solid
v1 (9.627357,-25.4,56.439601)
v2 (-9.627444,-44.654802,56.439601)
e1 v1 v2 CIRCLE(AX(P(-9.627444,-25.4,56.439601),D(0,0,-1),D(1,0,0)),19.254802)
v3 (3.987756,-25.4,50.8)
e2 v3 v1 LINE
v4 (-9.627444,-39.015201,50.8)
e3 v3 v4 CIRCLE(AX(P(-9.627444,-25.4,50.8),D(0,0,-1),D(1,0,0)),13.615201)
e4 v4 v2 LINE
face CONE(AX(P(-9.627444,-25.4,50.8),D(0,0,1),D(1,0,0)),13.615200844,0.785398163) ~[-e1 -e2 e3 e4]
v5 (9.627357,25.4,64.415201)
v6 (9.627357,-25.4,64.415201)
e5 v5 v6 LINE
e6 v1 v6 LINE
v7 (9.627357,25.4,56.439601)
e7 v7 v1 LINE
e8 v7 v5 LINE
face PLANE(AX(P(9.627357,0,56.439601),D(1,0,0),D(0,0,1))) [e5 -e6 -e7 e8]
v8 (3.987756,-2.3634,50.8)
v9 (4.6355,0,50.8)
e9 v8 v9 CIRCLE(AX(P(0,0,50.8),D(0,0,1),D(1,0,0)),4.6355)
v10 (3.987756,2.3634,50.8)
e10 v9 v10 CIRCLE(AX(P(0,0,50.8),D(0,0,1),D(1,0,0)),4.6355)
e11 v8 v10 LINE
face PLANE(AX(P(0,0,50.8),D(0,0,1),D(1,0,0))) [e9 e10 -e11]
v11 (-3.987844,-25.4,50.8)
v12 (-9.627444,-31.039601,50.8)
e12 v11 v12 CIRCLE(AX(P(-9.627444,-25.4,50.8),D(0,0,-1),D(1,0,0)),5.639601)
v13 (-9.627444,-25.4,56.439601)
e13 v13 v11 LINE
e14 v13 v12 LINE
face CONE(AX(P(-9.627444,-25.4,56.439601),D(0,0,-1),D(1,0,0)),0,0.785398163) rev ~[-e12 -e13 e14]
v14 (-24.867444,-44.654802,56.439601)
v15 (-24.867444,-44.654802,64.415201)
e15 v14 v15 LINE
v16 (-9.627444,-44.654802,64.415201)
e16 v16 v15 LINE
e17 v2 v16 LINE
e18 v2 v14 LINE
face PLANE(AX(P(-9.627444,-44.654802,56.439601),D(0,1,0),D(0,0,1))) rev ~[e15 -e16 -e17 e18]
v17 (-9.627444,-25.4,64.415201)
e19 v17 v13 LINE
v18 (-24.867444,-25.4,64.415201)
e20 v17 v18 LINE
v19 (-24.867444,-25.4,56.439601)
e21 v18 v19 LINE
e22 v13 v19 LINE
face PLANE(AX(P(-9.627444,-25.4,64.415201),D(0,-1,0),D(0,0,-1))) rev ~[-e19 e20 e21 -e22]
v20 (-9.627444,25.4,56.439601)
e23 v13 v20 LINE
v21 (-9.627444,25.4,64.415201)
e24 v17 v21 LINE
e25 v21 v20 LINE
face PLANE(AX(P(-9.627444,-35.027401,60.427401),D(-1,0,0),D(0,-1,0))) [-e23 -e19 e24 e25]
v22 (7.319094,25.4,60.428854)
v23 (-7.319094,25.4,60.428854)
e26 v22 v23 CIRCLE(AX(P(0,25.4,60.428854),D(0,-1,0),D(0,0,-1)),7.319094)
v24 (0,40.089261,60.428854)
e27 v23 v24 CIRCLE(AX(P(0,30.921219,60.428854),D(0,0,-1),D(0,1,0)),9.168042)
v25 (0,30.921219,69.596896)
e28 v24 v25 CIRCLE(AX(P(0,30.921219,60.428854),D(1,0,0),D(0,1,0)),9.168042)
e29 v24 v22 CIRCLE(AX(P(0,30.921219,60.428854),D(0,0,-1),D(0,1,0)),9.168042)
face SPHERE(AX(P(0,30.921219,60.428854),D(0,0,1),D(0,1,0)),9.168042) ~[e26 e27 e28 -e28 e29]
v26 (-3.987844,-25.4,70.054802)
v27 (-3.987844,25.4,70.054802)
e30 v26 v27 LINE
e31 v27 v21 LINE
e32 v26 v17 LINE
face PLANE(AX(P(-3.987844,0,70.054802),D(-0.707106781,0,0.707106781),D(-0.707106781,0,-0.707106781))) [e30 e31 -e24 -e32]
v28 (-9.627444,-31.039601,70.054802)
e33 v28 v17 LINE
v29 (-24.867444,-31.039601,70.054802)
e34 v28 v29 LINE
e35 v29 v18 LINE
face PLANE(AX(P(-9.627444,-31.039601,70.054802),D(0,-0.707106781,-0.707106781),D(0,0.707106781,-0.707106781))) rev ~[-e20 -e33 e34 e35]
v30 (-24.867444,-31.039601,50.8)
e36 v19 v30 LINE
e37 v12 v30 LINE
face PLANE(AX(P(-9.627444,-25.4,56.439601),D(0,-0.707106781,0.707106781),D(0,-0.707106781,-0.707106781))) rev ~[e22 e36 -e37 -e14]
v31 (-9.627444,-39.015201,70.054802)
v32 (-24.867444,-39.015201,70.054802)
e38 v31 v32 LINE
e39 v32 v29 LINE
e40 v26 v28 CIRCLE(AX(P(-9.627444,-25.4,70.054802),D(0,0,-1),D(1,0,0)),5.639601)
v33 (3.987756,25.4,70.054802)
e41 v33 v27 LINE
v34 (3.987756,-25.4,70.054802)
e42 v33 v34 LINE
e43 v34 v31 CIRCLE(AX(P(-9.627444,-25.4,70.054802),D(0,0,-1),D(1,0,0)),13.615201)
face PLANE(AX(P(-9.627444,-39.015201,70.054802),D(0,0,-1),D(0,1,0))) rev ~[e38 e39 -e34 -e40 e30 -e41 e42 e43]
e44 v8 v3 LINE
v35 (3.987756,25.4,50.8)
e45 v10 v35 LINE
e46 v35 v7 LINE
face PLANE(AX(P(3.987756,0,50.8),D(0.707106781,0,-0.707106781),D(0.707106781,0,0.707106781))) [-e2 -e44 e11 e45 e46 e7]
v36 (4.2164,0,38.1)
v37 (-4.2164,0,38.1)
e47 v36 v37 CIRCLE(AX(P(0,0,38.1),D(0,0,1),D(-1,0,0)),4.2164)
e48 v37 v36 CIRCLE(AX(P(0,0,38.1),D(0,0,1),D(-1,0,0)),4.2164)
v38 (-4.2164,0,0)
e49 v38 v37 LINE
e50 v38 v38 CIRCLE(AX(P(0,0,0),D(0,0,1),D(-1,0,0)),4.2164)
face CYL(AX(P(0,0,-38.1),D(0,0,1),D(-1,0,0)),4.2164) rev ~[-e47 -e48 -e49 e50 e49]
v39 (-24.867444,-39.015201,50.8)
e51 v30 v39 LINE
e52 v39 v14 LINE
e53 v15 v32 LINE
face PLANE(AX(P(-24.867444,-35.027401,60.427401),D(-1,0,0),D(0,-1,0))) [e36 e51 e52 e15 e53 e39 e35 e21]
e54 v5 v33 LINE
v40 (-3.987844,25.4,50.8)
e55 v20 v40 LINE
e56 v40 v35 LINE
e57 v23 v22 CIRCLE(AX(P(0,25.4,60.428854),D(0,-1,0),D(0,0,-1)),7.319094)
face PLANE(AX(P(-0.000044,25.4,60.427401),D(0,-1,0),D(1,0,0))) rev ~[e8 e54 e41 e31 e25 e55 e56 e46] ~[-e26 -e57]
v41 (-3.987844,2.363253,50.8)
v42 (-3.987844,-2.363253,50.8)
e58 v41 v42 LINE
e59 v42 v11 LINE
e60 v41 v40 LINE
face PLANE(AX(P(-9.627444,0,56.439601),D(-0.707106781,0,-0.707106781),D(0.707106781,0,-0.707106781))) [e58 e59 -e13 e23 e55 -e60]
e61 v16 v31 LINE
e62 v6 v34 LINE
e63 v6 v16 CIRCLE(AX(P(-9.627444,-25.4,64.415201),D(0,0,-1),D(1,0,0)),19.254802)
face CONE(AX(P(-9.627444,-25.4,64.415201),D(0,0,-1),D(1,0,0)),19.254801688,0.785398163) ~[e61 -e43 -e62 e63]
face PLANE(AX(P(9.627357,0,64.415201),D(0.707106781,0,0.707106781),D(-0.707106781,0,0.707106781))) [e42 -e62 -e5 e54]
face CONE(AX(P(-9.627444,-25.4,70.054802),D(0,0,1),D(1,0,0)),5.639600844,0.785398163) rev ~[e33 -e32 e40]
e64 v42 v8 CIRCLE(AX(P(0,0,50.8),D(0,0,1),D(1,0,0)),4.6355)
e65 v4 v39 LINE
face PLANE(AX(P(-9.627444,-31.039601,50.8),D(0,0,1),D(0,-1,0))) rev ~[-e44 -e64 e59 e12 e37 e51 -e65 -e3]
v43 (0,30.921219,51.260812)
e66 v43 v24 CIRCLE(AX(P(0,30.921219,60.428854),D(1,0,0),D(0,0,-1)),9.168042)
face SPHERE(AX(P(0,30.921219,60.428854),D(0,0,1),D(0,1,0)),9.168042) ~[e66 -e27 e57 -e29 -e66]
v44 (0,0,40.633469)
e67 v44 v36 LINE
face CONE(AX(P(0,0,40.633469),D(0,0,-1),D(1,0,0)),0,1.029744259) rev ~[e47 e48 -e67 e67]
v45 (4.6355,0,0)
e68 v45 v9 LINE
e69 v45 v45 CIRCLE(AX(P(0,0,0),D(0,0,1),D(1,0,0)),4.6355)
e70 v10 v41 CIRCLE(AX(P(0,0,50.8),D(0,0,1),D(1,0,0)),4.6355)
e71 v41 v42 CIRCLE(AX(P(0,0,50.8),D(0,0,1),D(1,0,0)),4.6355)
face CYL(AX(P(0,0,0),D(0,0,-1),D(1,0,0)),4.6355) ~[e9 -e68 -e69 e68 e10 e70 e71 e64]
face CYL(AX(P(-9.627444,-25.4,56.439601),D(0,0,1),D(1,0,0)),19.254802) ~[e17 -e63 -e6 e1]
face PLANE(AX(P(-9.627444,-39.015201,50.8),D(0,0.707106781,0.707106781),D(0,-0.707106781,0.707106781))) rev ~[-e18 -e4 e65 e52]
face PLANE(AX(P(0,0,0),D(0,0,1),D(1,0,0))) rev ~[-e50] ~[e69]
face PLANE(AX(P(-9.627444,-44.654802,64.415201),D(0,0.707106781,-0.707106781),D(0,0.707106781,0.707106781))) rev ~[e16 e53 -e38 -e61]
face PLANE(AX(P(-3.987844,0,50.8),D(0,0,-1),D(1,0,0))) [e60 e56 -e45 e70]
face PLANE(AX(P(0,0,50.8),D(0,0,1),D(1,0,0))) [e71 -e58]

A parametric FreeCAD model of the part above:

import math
import FreeCAD as App
import Part
import Sketcher
Q = App.Units.Quantity


def add_polygon(sketch, points):
    """Adds a closed chain of lines whose ends are joined by coincident constraints."""
    first, n = sketch.GeometryCount, len(points)
    for a, b in zip(points, points[1:] + points[:1]):
        sketch.addGeometry(Part.LineSegment(App.Vector(*a, 0), App.Vector(*b, 0)), False)
    for i in range(n):
        sketch.addConstraint(Sketcher.Constraint("Coincident", first + i, 2, first + (i + 1) % n, 1))

doc = App.newDocument("Part")
body = doc.addObject("PartDesign::Body", "Body")

sketch1 = doc.addObject("Sketcher::SketchObject", "Sketch")
body.addObject(sketch1)
sketch1.AttachmentSupport = (doc.XY_Plane, [""])
sketch1.MapMode = "FlatFace"
sketch1.addGeometry(Part.Circle(App.Vector(0, 0, 0), App.Vector(0, 0, 1), 4.6355), False)
sketch1.addConstraint(Sketcher.Constraint("Coincident", 0, 3, -1, 1))
sketch1.addConstraint(Sketcher.Constraint("Diameter", 0, Q("0.365 in")))
pad1 = doc.addObject("PartDesign::Pad", "Pad")
body.addObject(pad1)
pad1.Profile = sketch1
pad1.Length = Q("2 in")

sketch2 = doc.addObject("Sketcher::SketchObject", "Sketch001")
body.addObject(sketch2)
sketch2.AttachmentSupport = (doc.XY_Plane, [""])
sketch2.MapMode = "FlatFace"
sketch2.addGeometry(Part.Circle(App.Vector(0, 0, 0), App.Vector(0, 0, 1), 4.2164), False)
sketch2.addConstraint(Sketcher.Constraint("Coincident", 0, 3, -1, 1))
sketch2.addConstraint(Sketcher.Constraint("Diameter", 0, Q("0.332 in")))
doc.recompute()
hole = doc.addObject("PartDesign::Hole", "Hole")
body.addObject(hole)
hole.Profile = sketch2
hole.ThreadType = "None"
hole.Diameter = Q("0.332 in")
hole.DepthType = "Dimension"
hole.Depth = Q("1.5 in")
hole.DrillPoint = "Angled"
hole.DrillPointAngle = 118
hole.Reversed = True

sketch3 = doc.addObject("Sketcher::SketchObject", "Sketch002")
body.addObject(sketch3)
sketch3.AttachmentSupport = (doc.XZ_Plane, [""])
sketch3.MapMode = "FlatFace"
add_polygon(sketch3, [(-9.627444, 56.439601), (-3.987844, 50.8), (3.987756, 50.8), (9.627357, 56.439601), (9.627357, 64.415201), (3.987756, 70.054802), (-3.987844, 70.054802), (-9.627444, 64.415201)])
sketch3.addConstraint(Sketcher.Constraint("Horizontal", 1))
sketch3.addConstraint(Sketcher.Constraint("Vertical", 3))
sketch3.addConstraint(Sketcher.Constraint("Horizontal", 5))
sketch3.addConstraint(Sketcher.Constraint("Vertical", 7))
sketch3.addConstraint(Sketcher.Constraint("Perpendicular", 0, 2))
sketch3.addConstraint(Sketcher.Constraint("Perpendicular", 2, 4))
sketch3.addConstraint(Sketcher.Constraint("Perpendicular", 4, 6))
sketch3.addConstraint(Sketcher.Constraint("Horizontal", 3, 2, 6, 2))
sketch3.addConstraint(Sketcher.Constraint("Horizontal", 2, 2, 7, 2))
sketch3.addConstraint(Sketcher.Constraint("Vertical", 1, 2, 4, 2))
sketch3.addConstraint(Sketcher.Constraint("Vertical", 0, 2, 5, 2))
sketch3.addConstraint(Sketcher.Constraint("Equal", 5, 3))
sketch3.addConstraint(Sketcher.Constraint("DistanceY", -1, 1, 0, 2, Q("2 in")))
sketch3.addConstraint(Sketcher.Constraint("DistanceX", 1, 1, 1, 2, Q("0.314 in")))
sketch3.addConstraint(Sketcher.Constraint("Distance", 0, Q("0.314 in")))
sketch3.addConstraint(Sketcher.Constraint("DistanceX", 0, 2, -1, 1, Q("3.987844 mm")))
pad2 = doc.addObject("PartDesign::Pad", "Pad001")
body.addObject(pad2)
pad2.Profile = sketch3
pad2.Type = "TwoLengths"
pad2.Length = Q("1 in")
pad2.Length2 = Q("1 in")

sketch4 = doc.addObject("Sketcher::SketchObject", "Sketch003")
body.addObject(sketch4)
sketch4.AttachmentSupport = (doc.XZ_Plane, [""])
sketch4.MapMode = "FlatFace"
sketch4.AttachmentOffset = App.Placement(App.Vector(0, 0, 1 * 25.4), App.Rotation())
add_polygon(sketch4, [(9.627357, 64.415201), (3.987756, 70.054802), (-3.987844, 70.054802), (-9.627444, 64.415201), (-9.627444, 56.439601), (-3.987844, 50.8), (3.987756, 50.8), (9.627357, 56.439601)])
sketch4.addGeometry(Part.LineSegment(App.Vector(-9.627444, 70.054802, 0), App.Vector(-9.627444, 50.8, 0)), True)
sketch4.addConstraint(Sketcher.Constraint("Horizontal", 1))
sketch4.addConstraint(Sketcher.Constraint("Vertical", 3))
sketch4.addConstraint(Sketcher.Constraint("Horizontal", 5))
sketch4.addConstraint(Sketcher.Constraint("Vertical", 7))
sketch4.addConstraint(Sketcher.Constraint("Vertical", 8))
sketch4.addConstraint(Sketcher.Constraint("Perpendicular", 0, 2))
sketch4.addConstraint(Sketcher.Constraint("Perpendicular", 2, 4))
sketch4.addConstraint(Sketcher.Constraint("Perpendicular", 4, 6))
sketch4.addConstraint(Sketcher.Constraint("Horizontal", 3, 2, 6, 2))
sketch4.addConstraint(Sketcher.Constraint("Horizontal", 2, 2, 7, 2))
sketch4.addConstraint(Sketcher.Constraint("Horizontal", 1, 2, 8, 1))
sketch4.addConstraint(Sketcher.Constraint("Horizontal", 5, 2, 8, 2))
sketch4.addConstraint(Sketcher.Constraint("Vertical", 1, 2, 4, 2))
sketch4.addConstraint(Sketcher.Constraint("Vertical", 0, 2, 5, 2))
sketch4.addConstraint(Sketcher.Constraint("Vertical", 3, 2, 8, 1))
sketch4.addConstraint(Sketcher.Constraint("Equal", 5, 3))
sketch4.addConstraint(Sketcher.Constraint("DistanceY", -1, 1, 4, 2, Q("2 in")))
sketch4.addConstraint(Sketcher.Constraint("DistanceX", 1, 2, 1, 1, Q("0.314 in")))
sketch4.addConstraint(Sketcher.Constraint("Distance", 0, Q("0.314 in")))
sketch4.addConstraint(Sketcher.Constraint("DistanceX", -1, 1, 0, 2, Q("3.987756 mm")))
revolution = doc.addObject("PartDesign::Revolution", "Revolution")
body.addObject(revolution)
revolution.Profile = sketch4
revolution.ReferenceAxis = (sketch4, ["Axis0"])
revolution.Angle = 90

sketch5 = doc.addObject("Sketcher::SketchObject", "Sketch004")
body.addObject(sketch5)
sketch5.AttachmentSupport = (doc.YZ_Plane, [""])
sketch5.MapMode = "FlatFace"
sketch5.addGeometry(Part.ArcOfCircle(Part.Circle(App.Vector(30.921219, 60.428854, 0), App.Vector(0, 0, 1), 9.168042), math.radians(-90), math.radians(0)), False)
sketch5.addGeometry(Part.ArcOfCircle(Part.Circle(App.Vector(30.921219, 60.428854, 0), App.Vector(0, 0, 1), 9.168042), math.radians(0), math.radians(90)), False)
sketch5.addGeometry(Part.LineSegment(App.Vector(30.921219, 69.596896, 0), App.Vector(30.921219, 51.260812, 0)), False)
sketch5.addGeometry(Part.LineSegment(App.Vector(30.921219, 69.596896, 0), App.Vector(30.921219, 51.260812, 0)), True)
sketch5.addConstraint(Sketcher.Constraint("Tangent", 0, 2, 1, 1))
sketch5.addConstraint(Sketcher.Constraint("Coincident", 1, 2, 2, 1))
sketch5.addConstraint(Sketcher.Constraint("Coincident", 2, 2, 0, 1))
sketch5.addConstraint(Sketcher.Constraint("Vertical", 2))
sketch5.addConstraint(Sketcher.Constraint("Vertical", 3))
sketch5.addConstraint(Sketcher.Constraint("Coincident", 3, 1, 1, 2))
sketch5.addConstraint(Sketcher.Constraint("Equal", 0, 1))
sketch5.addConstraint(Sketcher.Constraint("Horizontal", 1, 3, 0, 2))
sketch5.addConstraint(Sketcher.Constraint("Vertical", 0, 3, 1, 2))
sketch5.addConstraint(Sketcher.Constraint("Equal", 2, 3))
sketch5.addConstraint(Sketcher.Constraint("Radius", 0, Q("9.168042 mm")))
sketch5.addConstraint(Sketcher.Constraint("DistanceX", -1, 1, 0, 3, Q("30.921219 mm")))
sketch5.addConstraint(Sketcher.Constraint("DistanceY", -1, 1, 0, 3, Q("60.428854 mm")))
revolution2 = doc.addObject("PartDesign::Revolution", "Revolution001")
body.addObject(revolution2)
revolution2.Profile = sketch5
revolution2.ReferenceAxis = (sketch5, ["Axis0"])
revolution2.Angle = 360

sketch6 = doc.addObject("Sketcher::SketchObject", "Sketch005")
body.addObject(sketch6)
sketch6.AttachmentSupport = (doc.YZ_Plane, [""])
sketch6.MapMode = "FlatFace"
sketch6.AttachmentOffset = App.Placement(App.Vector(0, 0, -9.627444), App.Rotation())
add_polygon(sketch6, [(-31.039601, 50.8), (-39.015201, 50.8), (-44.654802, 56.439601), (-44.654802, 64.415201), (-39.015201, 70.054802), (-31.039601, 70.054802), (-25.4, 64.415201), (-25.4, 56.439601)])
sketch6.addConstraint(Sketcher.Constraint("Horizontal", 0))
sketch6.addConstraint(Sketcher.Constraint("Vertical", 2))
sketch6.addConstraint(Sketcher.Constraint("Horizontal", 4))
sketch6.addConstraint(Sketcher.Constraint("Vertical", 6))
sketch6.addConstraint(Sketcher.Constraint("Perpendicular", 1, 3))
sketch6.addConstraint(Sketcher.Constraint("Perpendicular", 3, 5))
sketch6.addConstraint(Sketcher.Constraint("Perpendicular", 5, 7))
sketch6.addConstraint(Sketcher.Constraint("Horizontal", 2, 2, 5, 2))
sketch6.addConstraint(Sketcher.Constraint("Horizontal", 1, 2, 6, 2))
sketch6.addConstraint(Sketcher.Constraint("Vertical", 0, 2, 3, 2))
sketch6.addConstraint(Sketcher.Constraint("Vertical", 4, 2, 7, 2))
sketch6.addConstraint(Sketcher.Constraint("Equal", 4, 2))
sketch6.addConstraint(Sketcher.Constraint("DistanceY", -1, 1, 0, 2, Q("2 in")))
sketch6.addConstraint(Sketcher.Constraint("DistanceX", 5, 2, -1, 1, Q("1 in")))
sketch6.addConstraint(Sketcher.Constraint("DistanceX", 0, 2, 0, 1, Q("0.314 in")))
sketch6.addConstraint(Sketcher.Constraint("Distance", 1, Q("0.314 in")))
pad3 = doc.addObject("PartDesign::Pad", "Pad002")
body.addObject(pad3)
pad3.Profile = sketch6
pad3.Length = Q("0.6 in")
pad3.Reversed = True

doc.recompute()
